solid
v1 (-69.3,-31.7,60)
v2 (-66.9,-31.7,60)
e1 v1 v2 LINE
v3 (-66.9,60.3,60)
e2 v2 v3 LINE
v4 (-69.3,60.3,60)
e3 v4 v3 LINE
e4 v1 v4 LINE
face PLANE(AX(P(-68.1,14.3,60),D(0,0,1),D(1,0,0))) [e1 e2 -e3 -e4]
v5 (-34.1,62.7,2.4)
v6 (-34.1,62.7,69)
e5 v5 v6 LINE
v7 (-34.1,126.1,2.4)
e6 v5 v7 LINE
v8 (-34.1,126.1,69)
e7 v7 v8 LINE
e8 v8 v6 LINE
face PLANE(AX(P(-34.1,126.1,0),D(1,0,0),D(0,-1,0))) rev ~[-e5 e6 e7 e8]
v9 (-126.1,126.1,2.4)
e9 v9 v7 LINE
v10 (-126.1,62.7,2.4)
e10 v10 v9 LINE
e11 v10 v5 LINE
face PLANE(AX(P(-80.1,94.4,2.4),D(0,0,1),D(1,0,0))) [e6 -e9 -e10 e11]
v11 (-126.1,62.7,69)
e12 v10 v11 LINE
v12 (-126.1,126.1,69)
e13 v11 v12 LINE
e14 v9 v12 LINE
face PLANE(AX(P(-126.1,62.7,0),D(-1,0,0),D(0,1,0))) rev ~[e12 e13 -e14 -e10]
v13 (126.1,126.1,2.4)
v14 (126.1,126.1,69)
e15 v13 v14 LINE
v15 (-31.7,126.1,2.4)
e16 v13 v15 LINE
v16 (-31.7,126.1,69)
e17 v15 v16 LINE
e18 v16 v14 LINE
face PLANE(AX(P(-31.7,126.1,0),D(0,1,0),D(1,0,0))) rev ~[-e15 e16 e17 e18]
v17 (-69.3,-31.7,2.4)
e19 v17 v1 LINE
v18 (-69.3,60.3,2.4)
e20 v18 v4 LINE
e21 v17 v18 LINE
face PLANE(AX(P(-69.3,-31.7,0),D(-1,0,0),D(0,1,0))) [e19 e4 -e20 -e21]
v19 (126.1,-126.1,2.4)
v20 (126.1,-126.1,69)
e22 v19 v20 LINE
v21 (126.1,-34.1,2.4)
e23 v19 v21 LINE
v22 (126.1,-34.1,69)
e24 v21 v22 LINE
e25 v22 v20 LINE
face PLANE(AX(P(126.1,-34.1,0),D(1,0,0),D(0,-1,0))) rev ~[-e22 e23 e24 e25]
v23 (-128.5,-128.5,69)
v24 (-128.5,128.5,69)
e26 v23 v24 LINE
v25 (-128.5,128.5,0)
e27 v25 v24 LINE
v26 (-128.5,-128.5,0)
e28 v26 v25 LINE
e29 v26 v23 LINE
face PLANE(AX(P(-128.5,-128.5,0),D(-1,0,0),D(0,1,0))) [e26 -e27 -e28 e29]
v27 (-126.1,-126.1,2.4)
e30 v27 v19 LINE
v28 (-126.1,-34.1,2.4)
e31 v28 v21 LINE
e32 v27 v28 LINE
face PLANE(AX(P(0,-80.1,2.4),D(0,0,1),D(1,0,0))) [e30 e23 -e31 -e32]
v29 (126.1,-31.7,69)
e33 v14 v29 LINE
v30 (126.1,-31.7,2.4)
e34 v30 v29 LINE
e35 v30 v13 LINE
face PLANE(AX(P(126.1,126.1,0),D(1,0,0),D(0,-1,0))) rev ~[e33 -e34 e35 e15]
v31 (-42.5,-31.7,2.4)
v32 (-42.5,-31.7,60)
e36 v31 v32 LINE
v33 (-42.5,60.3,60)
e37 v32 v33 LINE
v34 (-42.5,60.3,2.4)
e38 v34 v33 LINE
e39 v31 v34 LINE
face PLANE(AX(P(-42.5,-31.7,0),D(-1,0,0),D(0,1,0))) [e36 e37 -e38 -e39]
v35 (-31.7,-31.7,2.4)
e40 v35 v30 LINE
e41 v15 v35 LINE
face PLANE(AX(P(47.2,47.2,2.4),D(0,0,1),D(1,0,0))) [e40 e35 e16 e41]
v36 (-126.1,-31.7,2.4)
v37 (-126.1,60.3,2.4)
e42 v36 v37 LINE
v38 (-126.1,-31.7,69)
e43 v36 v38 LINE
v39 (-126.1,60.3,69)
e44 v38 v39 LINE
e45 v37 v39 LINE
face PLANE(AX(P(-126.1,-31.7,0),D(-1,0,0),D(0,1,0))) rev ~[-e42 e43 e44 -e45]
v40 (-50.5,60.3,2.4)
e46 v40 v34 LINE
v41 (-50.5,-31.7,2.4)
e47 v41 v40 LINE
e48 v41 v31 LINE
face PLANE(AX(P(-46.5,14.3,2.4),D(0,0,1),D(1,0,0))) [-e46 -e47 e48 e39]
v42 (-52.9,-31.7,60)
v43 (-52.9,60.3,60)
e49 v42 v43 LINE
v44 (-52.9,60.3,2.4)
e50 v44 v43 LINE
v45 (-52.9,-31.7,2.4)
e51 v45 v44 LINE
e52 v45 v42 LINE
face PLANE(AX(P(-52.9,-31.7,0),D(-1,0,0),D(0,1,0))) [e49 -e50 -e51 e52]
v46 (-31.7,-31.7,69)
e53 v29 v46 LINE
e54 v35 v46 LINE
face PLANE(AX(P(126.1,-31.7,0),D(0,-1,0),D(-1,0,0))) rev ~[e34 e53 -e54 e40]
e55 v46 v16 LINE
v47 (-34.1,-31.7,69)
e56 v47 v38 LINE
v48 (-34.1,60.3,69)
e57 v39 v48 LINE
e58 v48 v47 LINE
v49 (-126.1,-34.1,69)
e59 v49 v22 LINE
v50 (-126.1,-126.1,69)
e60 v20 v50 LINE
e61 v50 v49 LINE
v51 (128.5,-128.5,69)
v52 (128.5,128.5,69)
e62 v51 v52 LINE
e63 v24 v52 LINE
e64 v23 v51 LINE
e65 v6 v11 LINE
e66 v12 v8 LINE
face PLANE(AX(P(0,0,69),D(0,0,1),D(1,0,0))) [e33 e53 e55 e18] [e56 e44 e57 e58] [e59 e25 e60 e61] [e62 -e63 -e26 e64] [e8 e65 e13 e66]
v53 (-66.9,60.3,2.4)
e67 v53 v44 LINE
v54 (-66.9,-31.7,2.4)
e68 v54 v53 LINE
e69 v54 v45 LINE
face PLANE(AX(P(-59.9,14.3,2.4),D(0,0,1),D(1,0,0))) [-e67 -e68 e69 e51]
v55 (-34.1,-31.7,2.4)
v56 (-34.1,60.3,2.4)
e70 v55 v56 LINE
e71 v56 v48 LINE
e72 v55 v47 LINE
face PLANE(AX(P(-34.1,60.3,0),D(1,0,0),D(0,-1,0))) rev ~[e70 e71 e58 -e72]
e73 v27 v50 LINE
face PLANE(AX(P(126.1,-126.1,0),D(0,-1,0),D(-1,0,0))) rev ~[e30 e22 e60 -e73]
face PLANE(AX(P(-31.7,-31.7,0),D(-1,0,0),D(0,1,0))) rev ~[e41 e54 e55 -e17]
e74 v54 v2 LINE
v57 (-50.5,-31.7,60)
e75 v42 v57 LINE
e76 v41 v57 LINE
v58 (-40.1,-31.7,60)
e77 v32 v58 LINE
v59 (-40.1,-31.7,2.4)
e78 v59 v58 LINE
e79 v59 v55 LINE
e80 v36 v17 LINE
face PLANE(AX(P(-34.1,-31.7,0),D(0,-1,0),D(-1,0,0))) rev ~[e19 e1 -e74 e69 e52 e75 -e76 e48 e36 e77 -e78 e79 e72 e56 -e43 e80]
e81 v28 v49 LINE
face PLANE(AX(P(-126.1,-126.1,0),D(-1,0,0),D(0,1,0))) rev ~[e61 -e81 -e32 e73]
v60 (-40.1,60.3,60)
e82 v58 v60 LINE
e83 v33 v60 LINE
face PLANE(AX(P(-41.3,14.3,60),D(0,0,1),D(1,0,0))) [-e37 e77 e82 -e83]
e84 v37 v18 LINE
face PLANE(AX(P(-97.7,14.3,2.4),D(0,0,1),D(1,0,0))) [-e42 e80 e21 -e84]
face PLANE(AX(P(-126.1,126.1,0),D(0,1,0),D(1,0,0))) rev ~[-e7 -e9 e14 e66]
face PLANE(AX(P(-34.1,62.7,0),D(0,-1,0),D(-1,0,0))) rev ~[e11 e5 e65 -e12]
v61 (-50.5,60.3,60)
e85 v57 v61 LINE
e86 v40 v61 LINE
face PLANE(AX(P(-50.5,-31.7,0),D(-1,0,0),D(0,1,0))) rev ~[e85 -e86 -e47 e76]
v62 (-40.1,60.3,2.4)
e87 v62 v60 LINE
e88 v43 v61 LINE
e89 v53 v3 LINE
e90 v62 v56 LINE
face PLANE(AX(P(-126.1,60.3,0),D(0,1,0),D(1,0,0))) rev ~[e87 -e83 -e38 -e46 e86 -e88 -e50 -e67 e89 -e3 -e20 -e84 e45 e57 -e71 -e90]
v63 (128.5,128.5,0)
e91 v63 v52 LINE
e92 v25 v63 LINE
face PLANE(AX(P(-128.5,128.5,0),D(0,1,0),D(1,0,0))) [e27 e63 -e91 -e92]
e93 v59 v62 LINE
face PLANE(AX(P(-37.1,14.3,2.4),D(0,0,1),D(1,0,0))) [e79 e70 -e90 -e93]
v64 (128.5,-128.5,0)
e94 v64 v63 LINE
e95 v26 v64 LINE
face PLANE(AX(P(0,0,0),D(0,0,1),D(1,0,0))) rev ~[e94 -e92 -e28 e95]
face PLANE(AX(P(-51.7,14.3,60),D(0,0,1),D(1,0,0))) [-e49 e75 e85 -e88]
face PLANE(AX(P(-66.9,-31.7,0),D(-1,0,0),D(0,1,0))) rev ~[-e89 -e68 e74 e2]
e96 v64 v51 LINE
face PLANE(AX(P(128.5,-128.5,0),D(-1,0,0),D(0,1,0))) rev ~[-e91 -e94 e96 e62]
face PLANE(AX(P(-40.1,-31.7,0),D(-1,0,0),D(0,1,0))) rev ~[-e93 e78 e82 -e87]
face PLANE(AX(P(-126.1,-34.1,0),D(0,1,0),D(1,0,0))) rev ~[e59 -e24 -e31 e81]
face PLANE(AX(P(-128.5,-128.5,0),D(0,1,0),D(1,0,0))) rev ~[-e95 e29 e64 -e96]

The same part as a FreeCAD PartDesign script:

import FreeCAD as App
import Part
import Sketcher
from FreeCAD import Vector
Q = App.Units.Quantity


def add_polygon(sketch, points):
    """Adds a closed chain of lines whose ends are joined by coincident constraints."""
    first, n = sketch.GeometryCount, len(points)
    for a, b in zip(points, points[1:] + points[:1]):
        sketch.addGeometry(Part.LineSegment(App.Vector(*a, 0), App.Vector(*b, 0)), False)
    for i in range(n):
        sketch.addConstraint(Sketcher.Constraint("Coincident", first + i, 2, first + (i + 1) % n, 1))

doc = App.newDocument("Part")
body = doc.addObject("PartDesign::Body", "Body")

sketch1 = doc.addObject("Sketcher::SketchObject", "Sketch")
body.addObject(sketch1)
sketch1.AttachmentSupport = (doc.XY_Plane, [""])
sketch1.MapMode = "FlatFace"
add_polygon(sketch1, [(-126, 126), (-126, 63), (-34, 63), (-34, 126)])
sketch1.addConstraint(Sketcher.Constraint("Vertical", 0))
sketch1.addConstraint(Sketcher.Constraint("Horizontal", 1))
sketch1.addConstraint(Sketcher.Constraint("Vertical", 2))
sketch1.addConstraint(Sketcher.Constraint("Horizontal", 3))
sketch1.addConstraint(Sketcher.Constraint("DistanceX", 1, 1, 1, 2, Q("92 mm")))
sketch1.addConstraint(Sketcher.Constraint("DistanceY", 0, 2, 0, 1, Q("63.4 mm")))
sketch1.addConstraint(Sketcher.Constraint("DistanceX", 0, 2, -1, 1, Q("126.1 mm")))
sketch1.addConstraint(Sketcher.Constraint("DistanceY", -1, 1, 0, 2, Q("62.7 mm")))
pad1 = doc.addObject("PartDesign::Pad", "Pad")
body.addObject(pad1)
pad1.Profile = sketch1
pad1.Length = 2.4
body2 = doc.addObject("PartDesign::Body", "Body001")

sketch2 = doc.addObject("Sketcher::SketchObject", "Sketch001")
body2.addObject(sketch2)
sketch2.AttachmentSupport = (doc.getObject("XY_Plane001"), [""])
sketch2.MapMode = "FlatFace"
add_polygon(sketch2, [(-126, 60), (-126, -32), (-69, -32), (-69, 60)])
sketch2.addConstraint(Sketcher.Constraint("Vertical", 0))
sketch2.addConstraint(Sketcher.Constraint("Horizontal", 1))
sketch2.addConstraint(Sketcher.Constraint("Vertical", 2))
sketch2.addConstraint(Sketcher.Constraint("Horizontal", 3))
sketch2.addConstraint(Sketcher.Constraint("DistanceY", 0, 2, 0, 1, Q("92 mm")))
sketch2.addConstraint(Sketcher.Constraint("DistanceX", 1, 1, 1, 2, Q("56.8 mm")))
sketch2.addConstraint(Sketcher.Constraint("DistanceX", 0, 2, -1, 1, Q("126.1 mm")))
sketch2.addConstraint(Sketcher.Constraint("DistanceY", 0, 2, -1, 1, Q("31.7 mm")))
pad2 = doc.addObject("PartDesign::Pad", "Pad001")
body2.addObject(pad2)
pad2.Profile = sketch2
pad2.Length = 2.4
body3 = doc.addObject("PartDesign::Body", "Body002")

sketch3 = doc.addObject("Sketcher::SketchObject", "Sketch002")
body3.addObject(sketch3)
sketch3.AttachmentSupport = (doc.getObject("XY_Plane002"), [""])
sketch3.MapMode = "FlatFace"
add_polygon(sketch3, [(-67, 60), (-67, -32), (-53, -32), (-53, 60)])
sketch3.addConstraint(Sketcher.Constraint("Vertical", 0))
sketch3.addConstraint(Sketcher.Constraint("Horizontal", 1))
sketch3.addConstraint(Sketcher.Constraint("Vertical", 2))
sketch3.addConstraint(Sketcher.Constraint("Horizontal", 3))
sketch3.addConstraint(Sketcher.Constraint("DistanceX", 1, 1, 1, 2, Q("14 mm")))
sketch3.addConstraint(Sketcher.Constraint("DistanceY", 0, 2, 0, 1, Q("92 mm")))
sketch3.addConstraint(Sketcher.Constraint("DistanceX", 0, 2, -1, 1, Q("66.9 mm")))
sketch3.addConstraint(Sketcher.Constraint("DistanceY", 0, 2, -1, 1, Q("31.7 mm")))
pad3 = doc.addObject("PartDesign::Pad", "Pad002")
body3.addObject(pad3)
pad3.Profile = sketch3
pad3.Length = 2.4
body4 = doc.addObject("PartDesign::Body", "Body003")

sketch4 = doc.addObject("Sketcher::SketchObject", "Sketch003")
body4.addObject(sketch4)
sketch4.AttachmentSupport = (doc.getObject("XY_Plane003"), [""])
sketch4.MapMode = "FlatFace"
add_polygon(sketch4, [(-50, 60), (-50, -32), (-42, -32), (-42, 60)])
sketch4.addConstraint(Sketcher.Constraint("Vertical", 0))
sketch4.addConstraint(Sketcher.Constraint("Horizontal", 1))
sketch4.addConstraint(Sketcher.Constraint("Vertical", 2))
sketch4.addConstraint(Sketcher.Constraint("Horizontal", 3))
sketch4.addConstraint(Sketcher.Constraint("DistanceX", 1, 1, 1, 2, Q("8 mm")))
sketch4.addConstraint(Sketcher.Constraint("DistanceY", 0, 2, 0, 1, Q("92 mm")))
sketch4.addConstraint(Sketcher.Constraint("DistanceX", 0, 2, -1, 1, Q("50.5 mm")))
sketch4.addConstraint(Sketcher.Constraint("DistanceY", 0, 2, -1, 1, Q("31.7 mm")))
pad4 = doc.addObject("PartDesign::Pad", "Pad003")
body4.addObject(pad4)
pad4.Profile = sketch4
pad4.Length = 2.4
body5 = doc.addObject("PartDesign::Body", "Body004")

sketch5 = doc.addObject("Sketcher::SketchObject", "Sketch004")
body5.addObject(sketch5)
sketch5.AttachmentSupport = (doc.getObject("XY_Plane004"), [""])
sketch5.MapMode = "FlatFace"
add_polygon(sketch5, [(-40, 60), (-40, -32), (-34, -32), (-34, 60)])
sketch5.addConstraint(Sketcher.Constraint("Vertical", 0))
sketch5.addConstraint(Sketcher.Constraint("Horizontal", 1))
sketch5.addConstraint(Sketcher.Constraint("Vertical", 2))
sketch5.addConstraint(Sketcher.Constraint("Horizontal", 3))
sketch5.addConstraint(Sketcher.Constraint("DistanceX", 1, 1, 1, 2, Q("6 mm")))
sketch5.addConstraint(Sketcher.Constraint("DistanceY", 0, 2, 0, 1, Q("92 mm")))
sketch5.addConstraint(Sketcher.Constraint("DistanceX", 0, 2, -1, 1, Q("40.1 mm")))
sketch5.addConstraint(Sketcher.Constraint("DistanceY", 0, 2, -1, 1, Q("31.7 mm")))
pad5 = doc.addObject("PartDesign::Pad", "Pad004")
body5.addObject(pad5)
pad5.Profile = sketch5
pad5.Length = 2.4
body6 = doc.addObject("PartDesign::Body", "Body005")

sketch6 = doc.addObject("Sketcher::SketchObject", "Sketch005")
body6.addObject(sketch6)
sketch6.AttachmentSupport = (doc.getObject("XY_Plane005"), [""])
sketch6.MapMode = "FlatFace"
add_polygon(sketch6, [(126, 126), (-32, 126), (-32, -32), (126, -32)])
sketch6.addConstraint(Sketcher.Constraint("Horizontal", 0))
sketch6.addConstraint(Sketcher.Constraint("Vertical", 1))
sketch6.addConstraint(Sketcher.Constraint("Horizontal", 2))
sketch6.addConstraint(Sketcher.Constraint("Vertical", 3))
sketch6.addConstraint(Sketcher.Constraint("Equal", 2, 1))
sketch6.addConstraint(Sketcher.Constraint("DistanceX", 0, 2, 0, 1, Q("157.8 mm")))
sketch6.addConstraint(Sketcher.Constraint("DistanceX", 0, 2, -1, 1, Q("31.7 mm")))
sketch6.addConstraint(Sketcher.Constraint("DistanceY", -1, 1, 0, 2, Q("126.1 mm")))
pad6 = doc.addObject("PartDesign::Pad", "Pad005")
body6.addObject(pad6)
pad6.Profile = sketch6
pad6.Length = 2.4
body7 = doc.addObject("PartDesign::Body", "Body006")

sketch7 = doc.addObject("Sketcher::SketchObject", "Sketch006")
body7.addObject(sketch7)
sketch7.AttachmentSupport = (doc.getObject("XY_Plane006"), [""])
sketch7.MapMode = "FlatFace"
add_polygon(sketch7, [(-126, -34), (-126, -126), (126, -126), (126, -34)])
sketch7.addConstraint(Sketcher.Constraint("Vertical", 0))
sketch7.addConstraint(Sketcher.Constraint("Horizontal", 1))
sketch7.addConstraint(Sketcher.Constraint("Vertical", 2))
sketch7.addConstraint(Sketcher.Constraint("Horizontal", 3))
sketch7.addConstraint(Sketcher.Constraint("DistanceY", 0, 2, 0, 1, Q("92 mm")))
sketch7.addConstraint(Sketcher.Constraint("DistanceX", 1, 1, 1, 2, Q("252.2 mm")))
sketch7.addConstraint(Sketcher.Constraint("DistanceX", 0, 2, -1, 1, Q("126.1 mm")))
sketch7.addConstraint(Sketcher.Constraint("DistanceY", 0, 2, -1, 1, Q("126.1 mm")))
pad7 = doc.addObject("PartDesign::Pad", "Pad006")
body7.addObject(pad7)
pad7.Profile = sketch7
pad7.Length = 2.4
body.AllowCompound = True
doc.recompute()

boolean = doc.addObject("PartDesign::Boolean", "Boolean")
body.addObject(boolean)
boolean.Type = "Fuse"
boolean.addObjects([body2])
doc.recompute()

boolean2 = doc.addObject("PartDesign::Boolean", "Boolean001")
body.addObject(boolean2)
boolean2.Type = "Fuse"
boolean2.addObjects([body3])
doc.recompute()

boolean3 = doc.addObject("PartDesign::Boolean", "Boolean002")
body.addObject(boolean3)
boolean3.Type = "Fuse"
boolean3.addObjects([body4])
doc.recompute()

boolean4 = doc.addObject("PartDesign::Boolean", "Boolean003")
body.addObject(boolean4)
boolean4.Type = "Fuse"
boolean4.addObjects([body5])
doc.recompute()

boolean5 = doc.addObject("PartDesign::Boolean", "Boolean004")
body.addObject(boolean5)
boolean5.Type = "Fuse"
boolean5.addObjects([body6])
doc.recompute()

boolean6 = doc.addObject("PartDesign::Boolean", "Boolean005")
body.addObject(boolean6)
boolean6.Type = "Fuse"
boolean6.addObjects([body7])

sketch8 = doc.addObject("Sketcher::SketchObject", "Sketch007")
body.addObject(sketch8)
sketch8.AttachmentSupport = (doc.XY_Plane, [""])
sketch8.MapMode = "FlatFace"
add_polygon(sketch8, [(-128, 128), (-128, -128), (128, -128), (128, 128)])
add_polygon(sketch8, [(-126, -126), (-126, -34), (126, -34), (126, -126)])
add_polygon(sketch8, [(-126, -32), (-126, 60), (-34, 60), (-34, -32)])
add_polygon(sketch8, [(-34, 63), (-126, 63), (-126, 126), (-34, 126)])
add_polygon(sketch8, [(-32, 126), (126, 126), (126, -32), (-32, -32)])
sketch8.addConstraint(Sketcher.Constraint("Vertical", 0))
sketch8.addConstraint(Sketcher.Constraint("Horizontal", 1))
sketch8.addConstraint(Sketcher.Constraint("Vertical", 2))
sketch8.addConstraint(Sketcher.Constraint("Horizontal", 3))
sketch8.addConstraint(Sketcher.Constraint("Vertical", 4))
sketch8.addConstraint(Sketcher.Constraint("Horizontal", 5))
sketch8.addConstraint(Sketcher.Constraint("Vertical", 6))
sketch8.addConstraint(Sketcher.Constraint("Horizontal", 7))
sketch8.addConstraint(Sketcher.Constraint("Vertical", 8))
sketch8.addConstraint(Sketcher.Constraint("Horizontal", 9))
sketch8.addConstraint(Sketcher.Constraint("Vertical", 10))
sketch8.addConstraint(Sketcher.Constraint("Horizontal", 11))
sketch8.addConstraint(Sketcher.Constraint("Horizontal", 12))
sketch8.addConstraint(Sketcher.Constraint("Vertical", 13))
sketch8.addConstraint(Sketcher.Constraint("Horizontal", 14))
sketch8.addConstraint(Sketcher.Constraint("Vertical", 15))
sketch8.addConstraint(Sketcher.Constraint("Horizontal", 16))
sketch8.addConstraint(Sketcher.Constraint("Vertical", 17))
sketch8.addConstraint(Sketcher.Constraint("Horizontal", 18))
sketch8.addConstraint(Sketcher.Constraint("Vertical", 19))
sketch8.addConstraint(Sketcher.Constraint("Symmetric", 0, 2, 2, 2, -1, 1))
sketch8.addConstraint(Sketcher.Constraint("Symmetric", 6, 2, 13, 2, -1, 1))
sketch8.addConstraint(Sketcher.Constraint("Symmetric", 7, 2, 16, 2, -1, 1))
sketch8.addConstraint(Sketcher.Constraint("Symmetric", 11, 2, 17, 2, -2))
sketch8.addConstraint(Sketcher.Constraint("Vertical", 11, 2, 12, 2))
sketch8.addConstraint(Sketcher.Constraint("Vertical", 10, 2, 14, 2))
sketch8.addConstraint(Sketcher.Constraint("Equal", 3, 0))
sketch8.addConstraint(Sketcher.Constraint("Equal", 14, 4))
sketch8.addConstraint(Sketcher.Constraint("Equal", 6, 8))
sketch8.addConstraint(Sketcher.Constraint("Equal", 18, 17))
sketch8.addConstraint(Sketcher.Constraint("DistanceX", 1, 1, 1, 2, Q("257 mm")))
sketch8.addConstraint(Sketcher.Constraint("DistanceX", 9, 1, 9, 2, Q("92 mm")))
sketch8.addConstraint(Sketcher.Constraint("DistanceX", 5, 1, 5, 2, Q("252.2 mm")))
sketch8.addConstraint(Sketcher.Constraint("DistanceX", 16, 1, 16, 2, Q("157.8 mm")))
sketch8.addConstraint(Sketcher.Constraint("DistanceY", 13, 1, 13, 2, Q("63.4 mm")))
sketch8.addConstraint(Sketcher.Constraint("DistanceY", 4, 2, -1, 1, Q("34.1 mm")))
pad8 = doc.addObject("PartDesign::Pad", "Pad007")
body.addObject(pad8)
pad8.Profile = sketch8
pad8.Length = 69

sketch9 = doc.addObject("Sketcher::SketchObject", "Sketch008")
body.addObject(sketch9)
sketch9.AttachmentSupport = (doc.XY_Plane, [""])
sketch9.MapMode = "FlatFace"
add_polygon(sketch9, [(-69.3, 60.3), (-69.3, -31.7), (-66.9, -31.7), (-66.9, 60.3)])
add_polygon(sketch9, [(-52.9, 60.3), (-52.9, -31.7), (-50.5, -31.7), (-50.5, 60.3)])
add_polygon(sketch9, [(-42.5, 60.3), (-42.5, -31.7), (-40.1, -31.7), (-40.1, 60.3)])
sketch9.addConstraint(Sketcher.Constraint("Vertical", 0))
sketch9.addConstraint(Sketcher.Constraint("Horizontal", 1))
sketch9.addConstraint(Sketcher.Constraint("Vertical", 2))
sketch9.addConstraint(Sketcher.Constraint("Horizontal", 3))
sketch9.addConstraint(Sketcher.Constraint("Vertical", 4))
sketch9.addConstraint(Sketcher.Constraint("Horizontal", 5))
sketch9.addConstraint(Sketcher.Constraint("Vertical", 6))
sketch9.addConstraint(Sketcher.Constraint("Horizontal", 7))
sketch9.addConstraint(Sketcher.Constraint("Vertical", 8))
sketch9.addConstraint(Sketcher.Constraint("Horizontal", 9))
sketch9.addConstraint(Sketcher.Constraint("Vertical", 10))
sketch9.addConstraint(Sketcher.Constraint("Horizontal", 11))
sketch9.addConstraint(Sketcher.Constraint("Horizontal", 1, 2, 4, 2))
sketch9.addConstraint(Sketcher.Constraint("Horizontal", 3, 2, 6, 2))
sketch9.addConstraint(Sketcher.Constraint("Horizontal", 5, 2, 8, 2))
sketch9.addConstraint(Sketcher.Constraint("Horizontal", 7, 2, 10, 2))
sketch9.addConstraint(Sketcher.Constraint("Equal", 3, 5))
sketch9.addConstraint(Sketcher.Constraint("Equal", 7, 9))
sketch9.addConstraint(Sketcher.Constraint("DistanceY", 0, 2, 0, 1, Q("92 mm")))
sketch9.addConstraint(Sketcher.Constraint("DistanceX", 1, 1, 1, 2, Q("2.4 mm")))
sketch9.addConstraint(Sketcher.Constraint("DistanceX", 1, 2, 4, 2, Q("14 mm")))
sketch9.addConstraint(Sketcher.Constraint("DistanceX", 5, 2, 8, 2, Q("8 mm")))
sketch9.addConstraint(Sketcher.Constraint("DistanceX", 0, 2, -1, 1, Q("69.3 mm")))
sketch9.addConstraint(Sketcher.Constraint("DistanceY", 0, 2, -1, 1, Q("31.7 mm")))
pad9 = doc.addObject("PartDesign::Pad", "Pad008")
body.addObject(pad9)
pad9.Profile = sketch9
pad9.Length = 60

doc.recompute()
